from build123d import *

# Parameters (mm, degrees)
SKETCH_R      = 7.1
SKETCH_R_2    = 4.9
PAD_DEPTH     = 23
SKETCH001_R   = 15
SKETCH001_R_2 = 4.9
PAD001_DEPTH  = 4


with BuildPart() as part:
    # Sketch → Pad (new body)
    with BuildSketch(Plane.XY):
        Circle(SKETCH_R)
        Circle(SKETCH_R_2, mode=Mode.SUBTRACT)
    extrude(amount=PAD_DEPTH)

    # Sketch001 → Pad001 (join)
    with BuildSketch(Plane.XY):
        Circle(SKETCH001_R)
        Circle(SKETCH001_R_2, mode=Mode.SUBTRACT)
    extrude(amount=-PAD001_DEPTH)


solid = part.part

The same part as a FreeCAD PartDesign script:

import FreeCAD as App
import Part
import Sketcher

doc = App.newDocument("Part")
body = doc.addObject("PartDesign::Body", "Body")

sketch1 = body.newObject("Sketcher::SketchObject", "Sketch")
sketch1.AttachmentSupport = (doc.getObject("XY_Plane"), [""])
sketch1.MapMode = "FlatFace"
sketch1.addGeometry(Part.Circle(App.Vector(0, 0, 0), App.Vector(0, 0, 1), 7.1), False)
sketch1.addGeometry(Part.Circle(App.Vector(0, 0, 0), App.Vector(0, 0, 1), 4.9), False)
sketch1.addConstraint(Sketcher.Constraint("Coincident", 0, 3, -1, 1))
sketch1.addConstraint(Sketcher.Constraint("Coincident", 1, 3, -1, 1))
sketch1.addConstraint(Sketcher.Constraint("Diameter", 0, 14.2))
sketch1.addConstraint(Sketcher.Constraint("Diameter", 1, 9.8))
pad1 = body.newObject("PartDesign::Pad", "Pad")
pad1.Profile = sketch1
pad1.Length = 23

sketch2 = body.newObject("Sketcher::SketchObject", "Sketch001")
sketch2.AttachmentSupport = (doc.getObject("XY_Plane"), [""])
sketch2.MapMode = "FlatFace"
sketch2.addGeometry(Part.Circle(App.Vector(0, 0, 0), App.Vector(0, 0, 1), 15), False)
sketch2.addGeometry(Part.Circle(App.Vector(0, 0, 0), App.Vector(0, 0, 1), 4.9), False)
sketch2.addConstraint(Sketcher.Constraint("Coincident", 0, 3, -1, 1))
sketch2.addConstraint(Sketcher.Constraint("Coincident", 1, 3, -1, 1))
sketch2.addConstraint(Sketcher.Constraint("Diameter", 0, 30.0))
sketch2.addConstraint(Sketcher.Constraint("Diameter", 1, 9.8))
pad2 = body.newObject("PartDesign::Pad", "Pad001")
pad2.Profile = sketch2
pad2.Length = 4
pad2.Reversed = True

doc.recompute()
